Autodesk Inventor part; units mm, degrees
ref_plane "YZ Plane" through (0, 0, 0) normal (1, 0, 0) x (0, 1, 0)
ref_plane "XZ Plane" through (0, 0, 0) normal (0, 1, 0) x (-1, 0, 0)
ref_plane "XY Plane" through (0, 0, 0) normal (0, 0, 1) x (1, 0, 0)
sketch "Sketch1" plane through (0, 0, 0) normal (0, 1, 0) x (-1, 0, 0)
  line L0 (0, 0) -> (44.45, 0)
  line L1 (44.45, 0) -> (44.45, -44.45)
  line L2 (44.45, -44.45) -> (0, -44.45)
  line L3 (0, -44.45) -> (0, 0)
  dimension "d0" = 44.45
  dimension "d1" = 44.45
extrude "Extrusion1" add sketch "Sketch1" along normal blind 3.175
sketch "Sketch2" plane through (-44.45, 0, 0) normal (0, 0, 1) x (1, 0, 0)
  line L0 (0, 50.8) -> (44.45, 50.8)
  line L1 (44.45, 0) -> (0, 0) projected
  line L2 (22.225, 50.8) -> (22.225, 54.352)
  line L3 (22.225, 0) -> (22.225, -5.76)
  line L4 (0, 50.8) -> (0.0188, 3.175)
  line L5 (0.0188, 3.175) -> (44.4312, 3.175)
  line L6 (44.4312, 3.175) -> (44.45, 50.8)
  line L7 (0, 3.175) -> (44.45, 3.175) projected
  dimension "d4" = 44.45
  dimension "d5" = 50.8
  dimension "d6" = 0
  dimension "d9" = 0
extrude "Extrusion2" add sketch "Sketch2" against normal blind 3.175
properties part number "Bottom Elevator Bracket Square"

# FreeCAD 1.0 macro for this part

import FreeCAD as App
import Part
import Sketcher
Q = App.Units.Quantity


def add_polygon(sketch, points):
    """Adds a closed chain of lines whose ends are joined by coincident constraints."""
    first, n = sketch.GeometryCount, len(points)
    for a, b in zip(points, points[1:] + points[:1]):
        sketch.addGeometry(Part.LineSegment(App.Vector(*a, 0), App.Vector(*b, 0)), False)
    for i in range(n):
        sketch.addConstraint(Sketcher.Constraint("Coincident", first + i, 2, first + (i + 1) % n, 1))

doc = App.newDocument("Part")
body = doc.addObject("PartDesign::Body", "Body")

sketch1 = body.newObject("Sketcher::SketchObject", "Sketch")
sketch1.AttachmentSupport = (doc.getObject("XZ_Plane"), [""])
sketch1.MapMode = "FlatFace"
add_polygon(sketch1, [(-44, 0), (0, 0), (0, -44), (-44, -44)])
sketch1.addConstraint([
    Sketcher.Constraint("Horizontal", 0),
    Sketcher.Constraint("Vertical", 1),
    Sketcher.Constraint("Horizontal", 2),
    Sketcher.Constraint("Vertical", 3),
    Sketcher.Constraint("Coincident", 0, 2, -1, 1),
    Sketcher.Constraint("Equal", 2, 1),
    Sketcher.Constraint("DistanceX", 0, 1, 0, 2, Q("1.75 in")),
])
pad1 = body.newObject("PartDesign::Pad", "Pad")
pad1.Profile = sketch1
pad1.Length = Q("0.125 in")
pad1.Reversed = True

sketch2 = body.newObject("Sketcher::SketchObject", "Sketch001")
sketch2.AttachmentSupport = (doc.getObject("XY_Plane"), [""])
sketch2.MapMode = "FlatFace"
add_polygon(sketch2, [(0, 51), (-44, 51), (-44, 3), (0, 3)])
sketch2.addConstraint([
    Sketcher.Constraint("Horizontal", 0),
    Sketcher.Constraint("Horizontal", 2),
    Sketcher.Constraint("PointOnObject", 3, 2, -2),
    Sketcher.Constraint("DistanceY", -1, 1, 0, 2, Q("2 in")),
    Sketcher.Constraint("DistanceX", 0, 2, 0, 1, Q("1.75 in")),
    Sketcher.Constraint("Distance", 1, Q("1.875 in")),
    Sketcher.Constraint("DistanceX", 2, 1, 2, 2, 44.4124),
    Sketcher.Constraint("DistanceX", 1, 2, -1, 1, 44.4312),
])
pad2 = body.newObject("PartDesign::Pad", "Pad001")
pad2.Profile = sketch2
pad2.Length = Q("0.125 in")
pad2.Reversed = True

doc.recompute()
